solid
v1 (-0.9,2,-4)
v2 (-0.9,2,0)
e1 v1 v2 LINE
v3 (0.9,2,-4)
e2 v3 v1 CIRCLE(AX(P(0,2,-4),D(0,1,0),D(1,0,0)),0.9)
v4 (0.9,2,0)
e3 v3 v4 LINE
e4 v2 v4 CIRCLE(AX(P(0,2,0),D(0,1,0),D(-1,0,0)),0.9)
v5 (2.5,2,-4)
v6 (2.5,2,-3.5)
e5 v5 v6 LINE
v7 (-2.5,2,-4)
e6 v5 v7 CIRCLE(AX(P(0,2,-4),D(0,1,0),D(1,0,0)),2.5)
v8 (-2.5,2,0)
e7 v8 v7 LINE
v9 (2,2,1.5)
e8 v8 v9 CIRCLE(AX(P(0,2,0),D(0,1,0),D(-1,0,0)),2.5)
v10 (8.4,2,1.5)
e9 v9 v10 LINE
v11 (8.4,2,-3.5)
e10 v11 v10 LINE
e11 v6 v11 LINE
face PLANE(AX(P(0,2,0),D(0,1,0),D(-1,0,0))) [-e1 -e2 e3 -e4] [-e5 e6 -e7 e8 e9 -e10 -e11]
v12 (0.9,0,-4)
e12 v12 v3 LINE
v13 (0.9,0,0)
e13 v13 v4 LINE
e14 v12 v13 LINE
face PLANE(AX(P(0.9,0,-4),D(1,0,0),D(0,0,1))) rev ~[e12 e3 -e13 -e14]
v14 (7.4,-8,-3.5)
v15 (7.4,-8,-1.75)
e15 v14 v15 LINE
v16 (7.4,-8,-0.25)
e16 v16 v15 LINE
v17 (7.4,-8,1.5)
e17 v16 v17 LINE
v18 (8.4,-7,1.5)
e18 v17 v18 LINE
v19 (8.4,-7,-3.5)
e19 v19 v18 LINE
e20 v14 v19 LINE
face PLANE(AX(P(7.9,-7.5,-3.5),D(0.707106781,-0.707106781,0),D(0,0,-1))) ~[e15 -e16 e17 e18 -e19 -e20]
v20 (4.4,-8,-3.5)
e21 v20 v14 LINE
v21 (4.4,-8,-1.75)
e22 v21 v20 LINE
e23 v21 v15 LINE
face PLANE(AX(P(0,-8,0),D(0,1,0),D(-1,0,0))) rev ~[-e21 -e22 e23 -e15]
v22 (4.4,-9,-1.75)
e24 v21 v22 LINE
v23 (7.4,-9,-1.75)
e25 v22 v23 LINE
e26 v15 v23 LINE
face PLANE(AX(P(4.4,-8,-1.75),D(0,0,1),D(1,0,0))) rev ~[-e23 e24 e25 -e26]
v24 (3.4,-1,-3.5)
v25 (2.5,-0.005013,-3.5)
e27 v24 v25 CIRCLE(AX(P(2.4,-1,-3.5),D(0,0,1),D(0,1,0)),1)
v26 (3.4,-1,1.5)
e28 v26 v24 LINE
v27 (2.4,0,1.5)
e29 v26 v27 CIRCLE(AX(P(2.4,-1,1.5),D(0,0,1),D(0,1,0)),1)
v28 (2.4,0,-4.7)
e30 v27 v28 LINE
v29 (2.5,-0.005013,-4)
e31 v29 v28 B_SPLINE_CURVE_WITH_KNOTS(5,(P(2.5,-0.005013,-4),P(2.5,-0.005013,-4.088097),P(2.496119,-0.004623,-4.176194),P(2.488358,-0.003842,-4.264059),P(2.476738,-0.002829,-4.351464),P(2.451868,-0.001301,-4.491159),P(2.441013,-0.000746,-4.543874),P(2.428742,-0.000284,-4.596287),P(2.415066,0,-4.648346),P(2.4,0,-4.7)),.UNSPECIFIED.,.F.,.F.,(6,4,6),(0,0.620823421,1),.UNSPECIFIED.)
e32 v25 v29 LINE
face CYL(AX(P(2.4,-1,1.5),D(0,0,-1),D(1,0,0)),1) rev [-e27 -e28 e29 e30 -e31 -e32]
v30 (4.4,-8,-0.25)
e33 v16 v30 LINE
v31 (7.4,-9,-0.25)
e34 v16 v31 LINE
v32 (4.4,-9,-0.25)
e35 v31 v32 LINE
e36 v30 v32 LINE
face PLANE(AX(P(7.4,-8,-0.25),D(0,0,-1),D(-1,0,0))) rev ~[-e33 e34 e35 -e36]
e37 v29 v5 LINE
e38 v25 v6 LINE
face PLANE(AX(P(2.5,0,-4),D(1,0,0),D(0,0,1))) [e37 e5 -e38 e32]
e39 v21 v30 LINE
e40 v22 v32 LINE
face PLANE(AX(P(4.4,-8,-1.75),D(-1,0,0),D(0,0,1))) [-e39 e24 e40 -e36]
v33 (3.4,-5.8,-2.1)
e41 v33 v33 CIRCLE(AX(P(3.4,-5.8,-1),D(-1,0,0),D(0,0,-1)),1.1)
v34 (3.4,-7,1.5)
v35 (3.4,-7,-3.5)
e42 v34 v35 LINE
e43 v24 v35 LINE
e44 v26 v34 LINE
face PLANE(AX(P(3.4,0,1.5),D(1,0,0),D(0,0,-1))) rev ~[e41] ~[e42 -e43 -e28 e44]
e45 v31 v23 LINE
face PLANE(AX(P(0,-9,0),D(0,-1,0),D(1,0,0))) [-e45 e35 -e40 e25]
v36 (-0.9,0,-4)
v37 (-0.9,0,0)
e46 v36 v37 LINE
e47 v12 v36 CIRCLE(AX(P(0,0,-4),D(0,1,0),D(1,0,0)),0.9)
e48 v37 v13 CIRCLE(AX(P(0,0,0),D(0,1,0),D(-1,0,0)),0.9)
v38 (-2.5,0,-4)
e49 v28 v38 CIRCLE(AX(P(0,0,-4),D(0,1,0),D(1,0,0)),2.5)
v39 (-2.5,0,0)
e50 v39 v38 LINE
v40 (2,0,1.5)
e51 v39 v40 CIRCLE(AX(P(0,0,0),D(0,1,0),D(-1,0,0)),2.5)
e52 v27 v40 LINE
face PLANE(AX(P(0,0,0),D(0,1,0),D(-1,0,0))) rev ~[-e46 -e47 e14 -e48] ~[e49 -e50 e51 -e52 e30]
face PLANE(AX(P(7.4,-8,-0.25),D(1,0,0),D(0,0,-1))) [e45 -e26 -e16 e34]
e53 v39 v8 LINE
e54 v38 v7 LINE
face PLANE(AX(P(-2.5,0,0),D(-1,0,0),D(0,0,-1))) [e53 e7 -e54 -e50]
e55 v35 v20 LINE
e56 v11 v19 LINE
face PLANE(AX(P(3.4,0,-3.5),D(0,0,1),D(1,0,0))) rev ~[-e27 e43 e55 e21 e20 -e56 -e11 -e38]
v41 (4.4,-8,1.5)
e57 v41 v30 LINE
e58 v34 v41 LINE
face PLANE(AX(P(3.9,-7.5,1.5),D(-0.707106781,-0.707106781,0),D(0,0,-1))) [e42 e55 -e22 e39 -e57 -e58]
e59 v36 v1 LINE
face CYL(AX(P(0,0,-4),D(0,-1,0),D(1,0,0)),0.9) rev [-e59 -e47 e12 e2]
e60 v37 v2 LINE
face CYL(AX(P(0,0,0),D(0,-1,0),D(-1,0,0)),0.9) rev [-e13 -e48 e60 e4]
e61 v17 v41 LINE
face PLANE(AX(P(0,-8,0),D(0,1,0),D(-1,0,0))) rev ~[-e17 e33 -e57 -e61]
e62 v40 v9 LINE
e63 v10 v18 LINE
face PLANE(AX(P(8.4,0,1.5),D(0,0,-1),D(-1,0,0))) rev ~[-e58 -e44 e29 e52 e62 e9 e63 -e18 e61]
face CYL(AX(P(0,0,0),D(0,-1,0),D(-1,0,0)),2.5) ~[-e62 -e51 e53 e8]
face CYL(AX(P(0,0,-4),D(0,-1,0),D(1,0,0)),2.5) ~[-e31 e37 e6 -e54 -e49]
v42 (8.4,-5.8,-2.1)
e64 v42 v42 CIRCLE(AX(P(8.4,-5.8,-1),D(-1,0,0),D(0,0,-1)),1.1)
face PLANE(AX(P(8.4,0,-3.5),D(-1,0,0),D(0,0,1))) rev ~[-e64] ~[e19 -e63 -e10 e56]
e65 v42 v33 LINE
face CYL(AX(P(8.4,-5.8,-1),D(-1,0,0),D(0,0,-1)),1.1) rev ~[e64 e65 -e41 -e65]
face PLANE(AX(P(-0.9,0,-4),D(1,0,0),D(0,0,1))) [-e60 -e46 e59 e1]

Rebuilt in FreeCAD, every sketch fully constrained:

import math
import FreeCAD as App
import Part
import Sketcher
from FreeCAD import Vector
Q = App.Units.Quantity


def edges_at(feature, points):
    """Names of the edges that pass closest to the given points."""
    edges = feature.Shape.Edges
    near = lambda p: min(range(len(edges)), key=lambda i: edges[i].distToShape(Part.Vertex(*p))[0])
    return sorted({f"Edge{near(p) + 1}" for p in points})

doc = App.newDocument("Part")
body = doc.addObject("PartDesign::Body", "Body")

# Sketch on XZ plane
sketch1 = doc.addObject("Sketcher::SketchObject", "Sketch")
body.addObject(sketch1)
sketch1.AttachmentSupport = (doc.XZ_Plane, [""])
sketch1.MapMode = "FlatFace"
sketch1.addGeometry([
    Part.LineSegment(Vector(2.5, -3.5, 0), Vector(2.5, -4, 0)),  # 0
    Part.ArcOfCircle(Part.Circle(Vector(0, -4, 0), Vector(0, 0, 1), 2.5), math.radians(180), math.radians(360)),  # 1
    Part.LineSegment(Vector(-2.5, -4, 0), Vector(-2.5, 0, 0)),  # 2
    Part.ArcOfCircle(Part.Circle(Vector(0, 0, 0), Vector(0, 0, 1), 2.5), math.radians(37), math.radians(180)),  # 3
    Part.LineSegment(Vector(2, 1.5, 0), Vector(8.4, 1.5, 0)),  # 4
    Part.LineSegment(Vector(8.4, 1.5, 0), Vector(8.4, -3.5, 0)),  # 5
    Part.LineSegment(Vector(8.4, -3.5, 0), Vector(2.5, -3.5, 0)),  # 6
    Part.ArcOfCircle(Part.Circle(Vector(0, 0, 0), Vector(0, 0, 1), 0.9), math.radians(0), math.radians(180)),  # 7
    Part.LineSegment(Vector(-0.9, 0, 0), Vector(-0.9, -4, 0)),  # 8
    Part.ArcOfCircle(Part.Circle(Vector(0, -4, 0), Vector(0, 0, 1), 0.9), math.radians(180), math.radians(360)),  # 9
    Part.LineSegment(Vector(0.9, -4, 0), Vector(0.9, 0, 0)),  # 10
], False)
sketch1.addConstraint([
    Sketcher.Constraint("Tangent", 0, 2, 1, 2),
    Sketcher.Constraint("Tangent", 1, 1, 2, 1),
    Sketcher.Constraint("Tangent", 2, 2, 3, 2),
    Sketcher.Constraint("Coincident", 3, 1, 4, 1),
    Sketcher.Constraint("Coincident", 4, 2, 5, 1),
    Sketcher.Constraint("Coincident", 5, 2, 6, 1),
    Sketcher.Constraint("Coincident", 6, 2, 0, 1),
    Sketcher.Constraint("Tangent", 7, 2, 8, 1),
    Sketcher.Constraint("Tangent", 8, 2, 9, 1),
    Sketcher.Constraint("Tangent", 9, 2, 10, 1),
    Sketcher.Constraint("Tangent", 10, 2, 7, 1),
    Sketcher.Constraint("Vertical", 0),
    Sketcher.Constraint("Vertical", 2),
    Sketcher.Constraint("Horizontal", 4),
    Sketcher.Constraint("Vertical", 5),
    Sketcher.Constraint("Horizontal", 6),
    Sketcher.Constraint("Vertical", 8),
    Sketcher.Constraint("Vertical", 10),
    Sketcher.Constraint("Coincident", 3, 3, -1, 1),
    Sketcher.Constraint("Coincident", 7, 3, -1, 1),
    Sketcher.Constraint("Coincident", 9, 3, 1, 3),
    Sketcher.Constraint("Radius", 1, Q("2.5 mm")),
    Sketcher.Constraint("Radius", 7, Q("0.9 mm")),
    Sketcher.Constraint("DistanceY", 2, 1, 2, 2, Q("4 mm")),
    Sketcher.Constraint("DistanceY", 5, 2, 5, 1, Q("5 mm")),
    Sketcher.Constraint("DistanceX", 6, 2, 6, 1, Q("5.9 mm")),
    Sketcher.Constraint("DistanceX", 4, 1, 4, 2, Q("6.4 mm")),
])
pad1 = doc.addObject("PartDesign::Pad", "Pad")
body.addObject(pad1)
pad1.Profile = sketch1
pad1.Length = 2
pad1.Reversed = True

# Sketch on XZ plane
sketch2 = doc.addObject("Sketcher::SketchObject", "Sketch001")
body.addObject(sketch2)
sketch2.AttachmentSupport = (doc.XZ_Plane, [""])
sketch2.MapMode = "FlatFace"
sketch2.addGeometry([
    Part.LineSegment(Vector(8, -4, 0), Vector(3, -4, 0)),
    Part.LineSegment(Vector(3, -4, 0), Vector(3, 2, 0)),
    Part.LineSegment(Vector(3, 2, 0), Vector(8, 2, 0)),
    Part.LineSegment(Vector(8, 2, 0), Vector(8, -4, 0)),
], False)
sketch2.addConstraint([
    Sketcher.Constraint("Coincident", 0, 2, 1, 1),
    Sketcher.Constraint("Coincident", 1, 2, 2, 1),
    Sketcher.Constraint("Coincident", 2, 2, 3, 1),
    Sketcher.Constraint("Coincident", 3, 2, 0, 1),
    Sketcher.Constraint("Horizontal", 0),
    Sketcher.Constraint("Vertical", 1),
    Sketcher.Constraint("Horizontal", 2),
    Sketcher.Constraint("Vertical", 3),
    Sketcher.Constraint("Equal", 2, 1),
    Sketcher.Constraint("DistanceX", 0, 2, 0, 1, Q("5 mm")),
    Sketcher.Constraint("DistanceX", -1, 1, 0, 2, Q("3.4 mm")),
    Sketcher.Constraint("DistanceY", 0, 2, -1, 1, Q("3.5 mm")),
])
pad2 = doc.addObject("PartDesign::Pad", "Pad001")
body.addObject(pad2)
pad2.Profile = sketch2
pad2.Length = 8

# Sketch on YZ plane
sketch3 = doc.addObject("Sketcher::SketchObject", "Sketch002")
body.addObject(sketch3)
sketch3.AttachmentSupport = (doc.YZ_Plane, [""])
sketch3.MapMode = "FlatFace"
sketch3.AttachmentOffset = App.Placement(Vector(0, 0, 8.4), App.Rotation())
sketch3.addGeometry(Part.Circle(Vector(-5.8, -1, 0), Vector(0, 0, 1), 1.1), False)
sketch3.addConstraint([
    Sketcher.Constraint("Diameter", 0, Q("2.2 mm")),
    Sketcher.Constraint("DistanceY", 0, 3, -1, 1, Q("1 mm")),
    Sketcher.Constraint("DistanceX", 0, 3, -1, 1, Q("5.8 mm")),
])
doc.recompute()
hole = doc.addObject("PartDesign::Hole", "Hole")
body.addObject(hole)
hole.Profile = sketch3
hole.ThreadType = "None"
hole.Diameter = 2.2
hole.DepthType = "ThroughAll"
doc.recompute()

fillet = doc.addObject("PartDesign::Fillet", "Fillet")
body.addObject(fillet)
fillet.Base = (hole, edges_at(hole, [(3.4, 0, -1)]))
fillet.Radius = 1
doc.recompute()

chamfer = doc.addObject("PartDesign::Chamfer", "Chamfer")
body.addObject(chamfer)
chamfer.Base = (fillet, edges_at(fillet, [(3.4, -8, -1), (8.4, -8, -1)]))
chamfer.Size = 1

# Sketch on XZ plane
sketch4 = doc.addObject("Sketcher::SketchObject", "Sketch003")
body.addObject(sketch4)
sketch4.AttachmentSupport = (doc.XZ_Plane, [""])
sketch4.MapMode = "FlatFace"
sketch4.AttachmentOffset = App.Placement(Vector(0, 0, 8), App.Rotation())
sketch4.addGeometry([
    Part.LineSegment(Vector(7.4, -1.8, 0), Vector(7.4, -0.2, 0)),
    Part.LineSegment(Vector(7.4, -0.2, 0), Vector(4.4, -0.2, 0)),
    Part.LineSegment(Vector(4.4, -0.2, 0), Vector(4.4, -1.8, 0)),
    Part.LineSegment(Vector(4.4, -1.8, 0), Vector(7.4, -1.8, 0)),
], False)
sketch4.addConstraint([
    Sketcher.Constraint("Coincident", 0, 2, 1, 1),
    Sketcher.Constraint("Coincident", 1, 2, 2, 1),
    Sketcher.Constraint("Coincident", 2, 2, 3, 1),
    Sketcher.Constraint("Coincident", 3, 2, 0, 1),
    Sketcher.Constraint("Vertical", 0),
    Sketcher.Constraint("Horizontal", 1),
    Sketcher.Constraint("Vertical", 2),
    Sketcher.Constraint("Horizontal", 3),
    Sketcher.Constraint("DistanceY", 0, 1, 0, 2, Q("1.5 mm")),
    Sketcher.Constraint("DistanceX", 1, 2, 1, 1, Q("3 mm")),
    Sketcher.Constraint("DistanceX", -1, 1, 0, 2, Q("7.4 mm")),
    Sketcher.Constraint("DistanceY", 0, 2, -1, 1, Q("0.25 mm")),
])
pad3 = doc.addObject("PartDesign::Pad", "Pad002")
body.addObject(pad3)
pad3.Profile = sketch4
pad3.Length = 1

doc.recompute()
